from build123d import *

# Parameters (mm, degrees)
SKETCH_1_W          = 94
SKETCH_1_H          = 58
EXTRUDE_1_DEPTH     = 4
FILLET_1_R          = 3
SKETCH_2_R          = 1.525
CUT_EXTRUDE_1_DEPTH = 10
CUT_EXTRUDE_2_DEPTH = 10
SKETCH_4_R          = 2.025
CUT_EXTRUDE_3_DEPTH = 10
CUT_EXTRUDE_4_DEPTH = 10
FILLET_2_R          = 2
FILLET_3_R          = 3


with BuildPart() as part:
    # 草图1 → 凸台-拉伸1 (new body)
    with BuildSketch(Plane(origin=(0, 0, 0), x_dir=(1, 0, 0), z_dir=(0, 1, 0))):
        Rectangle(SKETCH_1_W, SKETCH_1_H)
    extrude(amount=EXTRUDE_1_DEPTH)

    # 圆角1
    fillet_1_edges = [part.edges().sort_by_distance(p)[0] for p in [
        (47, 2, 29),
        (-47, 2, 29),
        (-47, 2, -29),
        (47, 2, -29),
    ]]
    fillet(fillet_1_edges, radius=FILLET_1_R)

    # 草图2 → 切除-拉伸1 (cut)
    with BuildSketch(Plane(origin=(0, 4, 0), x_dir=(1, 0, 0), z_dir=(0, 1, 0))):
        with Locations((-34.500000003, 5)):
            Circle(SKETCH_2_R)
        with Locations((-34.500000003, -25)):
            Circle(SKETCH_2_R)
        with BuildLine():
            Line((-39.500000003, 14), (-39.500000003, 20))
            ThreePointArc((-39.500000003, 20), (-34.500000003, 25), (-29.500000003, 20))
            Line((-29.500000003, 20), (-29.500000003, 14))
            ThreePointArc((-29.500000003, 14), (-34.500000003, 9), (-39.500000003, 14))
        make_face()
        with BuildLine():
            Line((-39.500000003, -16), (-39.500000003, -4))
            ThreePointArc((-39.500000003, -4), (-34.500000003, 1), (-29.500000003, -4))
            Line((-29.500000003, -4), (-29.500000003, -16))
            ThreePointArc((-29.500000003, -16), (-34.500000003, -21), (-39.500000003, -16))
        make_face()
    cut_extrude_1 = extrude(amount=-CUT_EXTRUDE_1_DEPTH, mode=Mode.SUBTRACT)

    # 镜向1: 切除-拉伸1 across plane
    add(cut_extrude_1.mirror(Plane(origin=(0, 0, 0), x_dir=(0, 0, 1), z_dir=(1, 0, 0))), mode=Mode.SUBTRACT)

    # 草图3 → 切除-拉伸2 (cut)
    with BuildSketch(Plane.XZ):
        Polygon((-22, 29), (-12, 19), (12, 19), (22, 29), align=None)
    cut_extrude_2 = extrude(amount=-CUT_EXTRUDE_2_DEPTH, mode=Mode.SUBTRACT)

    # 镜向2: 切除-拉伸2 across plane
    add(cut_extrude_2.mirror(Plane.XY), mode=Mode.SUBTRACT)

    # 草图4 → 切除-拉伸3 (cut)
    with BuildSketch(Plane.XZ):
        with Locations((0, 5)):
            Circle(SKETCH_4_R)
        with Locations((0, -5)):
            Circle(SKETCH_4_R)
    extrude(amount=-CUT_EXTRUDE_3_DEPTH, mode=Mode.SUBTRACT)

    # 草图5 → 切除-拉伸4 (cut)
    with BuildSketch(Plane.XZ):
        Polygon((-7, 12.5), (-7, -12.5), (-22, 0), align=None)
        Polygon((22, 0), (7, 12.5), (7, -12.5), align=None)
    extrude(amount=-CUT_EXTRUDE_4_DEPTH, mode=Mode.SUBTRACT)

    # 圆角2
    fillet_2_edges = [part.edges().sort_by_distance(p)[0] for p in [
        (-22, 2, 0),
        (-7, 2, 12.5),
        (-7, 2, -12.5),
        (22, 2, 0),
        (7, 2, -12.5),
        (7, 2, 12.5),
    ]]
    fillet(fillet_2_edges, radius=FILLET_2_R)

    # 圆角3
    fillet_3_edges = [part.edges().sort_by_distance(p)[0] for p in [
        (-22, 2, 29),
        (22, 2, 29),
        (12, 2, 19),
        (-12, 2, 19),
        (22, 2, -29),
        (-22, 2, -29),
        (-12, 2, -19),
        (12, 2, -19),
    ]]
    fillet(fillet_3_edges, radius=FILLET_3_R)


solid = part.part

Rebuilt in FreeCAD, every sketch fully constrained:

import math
import FreeCAD as App
import Part
import Sketcher
Q = App.Units.Quantity


def edges_at(feature, points):
    """Names of the edges that pass closest to the given points."""
    edges = feature.Shape.Edges
    near = lambda p: min(range(len(edges)), key=lambda i: edges[i].distToShape(Part.Vertex(*p))[0])
    return sorted({f"Edge{near(p) + 1}" for p in points})

doc = App.newDocument("Part")
body = doc.addObject("PartDesign::Body", "Body")

# Sketch on XZ plane
sketch1 = body.newObject("Sketcher::SketchObject", "Sketch")
sketch1.AttachmentSupport = (doc.getObject("XZ_Plane"), [""])
sketch1.MapMode = "FlatFace"
sketch1.addGeometry(Part.LineSegment(App.Vector(-47, -29, 0), App.Vector(-47, 29, 0)), False)
sketch1.addGeometry(Part.LineSegment(App.Vector(-47, 29, 0), App.Vector(47, 29, 0)), False)
sketch1.addGeometry(Part.LineSegment(App.Vector(47, 29, 0), App.Vector(47, -29, 0)), False)
sketch1.addGeometry(Part.LineSegment(App.Vector(47, -29, 0), App.Vector(-47, -29, 0)), False)
sketch1.addConstraint(Sketcher.Constraint("Coincident", 0, 2, 1, 1))
sketch1.addConstraint(Sketcher.Constraint("Coincident", 1, 2, 2, 1))
sketch1.addConstraint(Sketcher.Constraint("Coincident", 2, 2, 3, 1))
sketch1.addConstraint(Sketcher.Constraint("Coincident", 3, 2, 0, 1))
sketch1.addConstraint(Sketcher.Constraint("Vertical", 0))
sketch1.addConstraint(Sketcher.Constraint("Horizontal", 1))
sketch1.addConstraint(Sketcher.Constraint("Vertical", 2))
sketch1.addConstraint(Sketcher.Constraint("Horizontal", 3))
sketch1.addConstraint(Sketcher.Constraint("Symmetric", 0, 2, 2, 2, -1, 1))
sketch1.addConstraint(Sketcher.Constraint("DistanceX", 1, 1, 1, 2, Q("94 mm")))
sketch1.addConstraint(Sketcher.Constraint("DistanceY", 0, 1, 0, 2, Q("58 mm")))
pad1 = body.newObject("PartDesign::Pad", "Pad")
pad1.Profile = sketch1
pad1.Length = 4
pad1.Reversed = True
doc.recompute()

fillet = body.newObject("PartDesign::Fillet", "Fillet")
fillet.Base = (pad1, edges_at(pad1, [
    (47, 2, 29),
    (-47, 2, 29),
    (-47, 2, -29),
    (47, 2, -29),
]))
fillet.Radius = 3

# Sketch on XZ plane
sketch2 = body.newObject("Sketcher::SketchObject", "Sketch001")
sketch2.AttachmentSupport = (doc.getObject("XZ_Plane"), [""])
sketch2.MapMode = "FlatFace"
sketch2.AttachmentOffset = App.Placement(App.Vector(0, 0, -4), App.Rotation())
sketch2.addGeometry(Part.Circle(App.Vector(-34.5, -5, 0), App.Vector(0, 0, 1), 1.525), False)
sketch2.addGeometry(Part.Circle(App.Vector(-34.5, 25, 0), App.Vector(0, 0, 1), 1.525), False)
sketch2.addGeometry(Part.LineSegment(App.Vector(-39.5, -20, 0), App.Vector(-39.5, -14, 0)), False)
sketch2.addGeometry(Part.ArcOfCircle(Part.Circle(App.Vector(-34.5, -14, 0), App.Vector(0, 0, 1), 5), math.radians(0), math.radians(180)), False)
sketch2.addGeometry(Part.LineSegment(App.Vector(-29.5, -14, 0), App.Vector(-29.5, -20, 0)), False)
sketch2.addGeometry(Part.ArcOfCircle(Part.Circle(App.Vector(-34.5, -20, 0), App.Vector(0, 0, 1), 5), math.radians(180), math.radians(360)), False)
sketch2.addGeometry(Part.LineSegment(App.Vector(-39.5, 4, 0), App.Vector(-39.5, 16, 0)), False)
sketch2.addGeometry(Part.ArcOfCircle(Part.Circle(App.Vector(-34.5, 16, 0), App.Vector(0, 0, 1), 5), math.radians(0), math.radians(180)), False)
sketch2.addGeometry(Part.LineSegment(App.Vector(-29.5, 16, 0), App.Vector(-29.5, 4, 0)), False)
sketch2.addGeometry(Part.ArcOfCircle(Part.Circle(App.Vector(-34.5, 4, 0), App.Vector(0, 0, 1), 5), math.radians(180), math.radians(360)), False)
sketch2.addConstraint(Sketcher.Constraint("Tangent", 2, 2, 3, 2))
sketch2.addConstraint(Sketcher.Constraint("Tangent", 3, 1, 4, 1))
sketch2.addConstraint(Sketcher.Constraint("Tangent", 4, 2, 5, 2))
sketch2.addConstraint(Sketcher.Constraint("Tangent", 5, 1, 2, 1))
sketch2.addConstraint(Sketcher.Constraint("Tangent", 6, 2, 7, 2))
sketch2.addConstraint(Sketcher.Constraint("Tangent", 7, 1, 8, 1))
sketch2.addConstraint(Sketcher.Constraint("Tangent", 8, 2, 9, 2))
sketch2.addConstraint(Sketcher.Constraint("Tangent", 9, 1, 6, 1))
sketch2.addConstraint(Sketcher.Constraint("Vertical", 2))
sketch2.addConstraint(Sketcher.Constraint("Vertical", 4))
sketch2.addConstraint(Sketcher.Constraint("Vertical", 6))
sketch2.addConstraint(Sketcher.Constraint("Vertical", 8))
sketch2.addConstraint(Sketcher.Constraint("Equal", 0, 1))
sketch2.addConstraint(Sketcher.Constraint("Equal", 5, 7))
sketch2.addConstraint(Sketcher.Constraint("Vertical", 0, 3, 1, 3))
sketch2.addConstraint(Sketcher.Constraint("Vertical", 1, 3, 3, 3))
sketch2.addConstraint(Sketcher.Constraint("Vertical", 5, 3, 7, 3))
sketch2.addConstraint(Sketcher.Constraint("Radius", 3, Q("5 mm")))
sketch2.addConstraint(Sketcher.Constraint("Diameter", 0, Q("3.05 mm")))
sketch2.addConstraint(Sketcher.Constraint("DistanceY", 2, 1, 2, 2, Q("6 mm")))
sketch2.addConstraint(Sketcher.Constraint("DistanceY", 6, 1, 6, 2, Q("12 mm")))
sketch2.addConstraint(Sketcher.Constraint("DistanceY", 0, 3, -1, 1, Q("5 mm")))
sketch2.addConstraint(Sketcher.Constraint("DistanceY", -1, 1, 1, 3, Q("25 mm")))
sketch2.addConstraint(Sketcher.Constraint("DistanceY", 3, 3, -1, 1, Q("14 mm")))
sketch2.addConstraint(Sketcher.Constraint("DistanceY", -1, 1, 7, 3, Q("16 mm")))
sketch2.addConstraint(Sketcher.Constraint("DistanceX", 0, 3, -1, 1, Q("34.5 mm")))
pocket1 = body.newObject("PartDesign::Pocket", "Pocket")
pocket1.Profile = sketch2
pocket1.Length = 10
pocket1.Reversed = True
doc.recompute()

mirrored = body.newObject("PartDesign::Mirrored", "Mirrored")
mirrored.Originals = [pocket1]
mirrored.MirrorPlane = (doc.getObject("YZ_Plane"), [""])
body.Tip = mirrored

# Sketch on XZ plane
sketch3 = body.newObject("Sketcher::SketchObject", "Sketch002")
sketch3.AttachmentSupport = (doc.getObject("XZ_Plane"), [""])
sketch3.MapMode = "FlatFace"
sketch3.addGeometry(Part.LineSegment(App.Vector(-22, 29, 0), App.Vector(-12, 19, 0)), False)
sketch3.addGeometry(Part.LineSegment(App.Vector(-12, 19, 0), App.Vector(12, 19, 0)), False)
sketch3.addGeometry(Part.LineSegment(App.Vector(12, 19, 0), App.Vector(22, 29, 0)), False)
sketch3.addGeometry(Part.LineSegment(App.Vector(22, 29, 0), App.Vector(-22, 29, 0)), False)
sketch3.addConstraint(Sketcher.Constraint("Coincident", 0, 2, 1, 1))
sketch3.addConstraint(Sketcher.Constraint("Coincident", 1, 2, 2, 1))
sketch3.addConstraint(Sketcher.Constraint("Coincident", 2, 2, 3, 1))
sketch3.addConstraint(Sketcher.Constraint("Coincident", 3, 2, 0, 1))
sketch3.addConstraint(Sketcher.Constraint("Horizontal", 1))
sketch3.addConstraint(Sketcher.Constraint("Horizontal", 3))
sketch3.addConstraint(Sketcher.Constraint("Perpendicular", 0, 2))
sketch3.addConstraint(Sketcher.Constraint("Equal", 0, 2))
sketch3.addConstraint(Sketcher.Constraint("DistanceX", 1, 1, 1, 2, Q("24 mm")))
sketch3.addConstraint(Sketcher.Constraint("DistanceX", 3, 2, 3, 1, Q("44 mm")))
sketch3.addConstraint(Sketcher.Constraint("DistanceX", 0, 2, -1, 1, Q("12 mm")))
sketch3.addConstraint(Sketcher.Constraint("DistanceY", -1, 1, 0, 2, Q("19 mm")))
pocket2 = body.newObject("PartDesign::Pocket", "Pocket001")
pocket2.Profile = sketch3
pocket2.Length = 10
doc.recompute()

mirrored2 = body.newObject("PartDesign::Mirrored", "Mirrored001")
mirrored2.Originals = [pocket2]
mirrored2.MirrorPlane = (doc.getObject("XY_Plane"), [""])
body.Tip = mirrored2

# Sketch on XZ plane
sketch4 = body.newObject("Sketcher::SketchObject", "Sketch003")
sketch4.AttachmentSupport = (doc.getObject("XZ_Plane"), [""])
sketch4.MapMode = "FlatFace"
sketch4.addGeometry(Part.Circle(App.Vector(0, 5, 0), App.Vector(0, 0, 1), 2.025), False)
sketch4.addGeometry(Part.Circle(App.Vector(0, -5, 0), App.Vector(0, 0, 1), 2.025), False)
sketch4.addConstraint(Sketcher.Constraint("Equal", 0, 1))
sketch4.addConstraint(Sketcher.Constraint("Symmetric", 0, 3, 1, 3, -1, 1))
sketch4.addConstraint(Sketcher.Constraint("PointOnObject", 0, 3, -2))
sketch4.addConstraint(Sketcher.Constraint("Diameter", 0, Q("4.05 mm")))
sketch4.addConstraint(Sketcher.Constraint("DistanceY", -1, 1, 0, 3, Q("5 mm")))
pocket3 = body.newObject("PartDesign::Pocket", "Pocket002")
pocket3.Profile = sketch4
pocket3.Length = 10

# Sketch on XZ plane
sketch5 = body.newObject("Sketcher::SketchObject", "Sketch004")
sketch5.AttachmentSupport = (doc.getObject("XZ_Plane"), [""])
sketch5.MapMode = "FlatFace"
sketch5.addGeometry(Part.LineSegment(App.Vector(-7, -12.5, 0), App.Vector(-7, 12.5, 0)), False)
sketch5.addGeometry(Part.LineSegment(App.Vector(-7, 12.5, 0), App.Vector(-22, 0, 0)), False)
sketch5.addGeometry(Part.LineSegment(App.Vector(-22, 0, 0), App.Vector(-7, -12.5, 0)), False)
sketch5.addGeometry(Part.LineSegment(App.Vector(22, 0, 0), App.Vector(7, 12.5, 0)), False)
sketch5.addGeometry(Part.LineSegment(App.Vector(7, 12.5, 0), App.Vector(7, -12.5, 0)), False)
sketch5.addGeometry(Part.LineSegment(App.Vector(7, -12.5, 0), App.Vector(22, 0, 0)), False)
sketch5.addConstraint(Sketcher.Constraint("Coincident", 0, 2, 1, 1))
sketch5.addConstraint(Sketcher.Constraint("Coincident", 1, 2, 2, 1))
sketch5.addConstraint(Sketcher.Constraint("Coincident", 2, 2, 0, 1))
sketch5.addConstraint(Sketcher.Constraint("Coincident", 3, 2, 4, 1))
sketch5.addConstraint(Sketcher.Constraint("Coincident", 4, 2, 5, 1))
sketch5.addConstraint(Sketcher.Constraint("Coincident", 5, 2, 3, 1))
sketch5.addConstraint(Sketcher.Constraint("Vertical", 0))
sketch5.addConstraint(Sketcher.Constraint("Vertical", 4))
sketch5.addConstraint(Sketcher.Constraint("Symmetric", 2, 2, 3, 2, -1, 1))
sketch5.addConstraint(Sketcher.Constraint("Symmetric", 1, 2, 5, 2, -1, 1))
sketch5.addConstraint(Sketcher.Constraint("PointOnObject", 1, 2, -1))
sketch5.addConstraint(Sketcher.Constraint("Parallel", 1, 5))
sketch5.addConstraint(Sketcher.Constraint("Horizontal", 0, 2, 3, 2))
sketch5.addConstraint(Sketcher.Constraint("DistanceY", 0, 1, 0, 2, Q("25 mm")))
sketch5.addConstraint(Sketcher.Constraint("DistanceX", 0, 2, -1, 1, Q("7 mm")))
sketch5.addConstraint(Sketcher.Constraint("DistanceX", 1, 2, -1, 1, Q("22 mm")))
pocket4 = body.newObject("PartDesign::Pocket", "Pocket003")
pocket4.Profile = sketch5
pocket4.Length = 10
doc.recompute()

fillet2 = body.newObject("PartDesign::Fillet", "Fillet001")
fillet2.Base = (pocket4, edges_at(pocket4, [
    (-22, 2, 0),
    (-7, 2, 12.5),
    (-7, 2, -12.5),
    (22, 2, 0),
    (7, 2, -12.5),
    (7, 2, 12.5),
]))
fillet2.Radius = 2
doc.recompute()

fillet3 = body.newObject("PartDesign::Fillet", "Fillet002")
fillet3.Base = (fillet2, edges_at(fillet2, [
    (-22, 2, 29),
    (22, 2, 29),
    (12, 2, 19),
    (-12, 2, 19),
    (22, 2, -29),
    (-22, 2, -29),
    (-12, 2, -19),
    (12, 2, -19),
]))
fillet3.Radius = 3

doc.recompute()
